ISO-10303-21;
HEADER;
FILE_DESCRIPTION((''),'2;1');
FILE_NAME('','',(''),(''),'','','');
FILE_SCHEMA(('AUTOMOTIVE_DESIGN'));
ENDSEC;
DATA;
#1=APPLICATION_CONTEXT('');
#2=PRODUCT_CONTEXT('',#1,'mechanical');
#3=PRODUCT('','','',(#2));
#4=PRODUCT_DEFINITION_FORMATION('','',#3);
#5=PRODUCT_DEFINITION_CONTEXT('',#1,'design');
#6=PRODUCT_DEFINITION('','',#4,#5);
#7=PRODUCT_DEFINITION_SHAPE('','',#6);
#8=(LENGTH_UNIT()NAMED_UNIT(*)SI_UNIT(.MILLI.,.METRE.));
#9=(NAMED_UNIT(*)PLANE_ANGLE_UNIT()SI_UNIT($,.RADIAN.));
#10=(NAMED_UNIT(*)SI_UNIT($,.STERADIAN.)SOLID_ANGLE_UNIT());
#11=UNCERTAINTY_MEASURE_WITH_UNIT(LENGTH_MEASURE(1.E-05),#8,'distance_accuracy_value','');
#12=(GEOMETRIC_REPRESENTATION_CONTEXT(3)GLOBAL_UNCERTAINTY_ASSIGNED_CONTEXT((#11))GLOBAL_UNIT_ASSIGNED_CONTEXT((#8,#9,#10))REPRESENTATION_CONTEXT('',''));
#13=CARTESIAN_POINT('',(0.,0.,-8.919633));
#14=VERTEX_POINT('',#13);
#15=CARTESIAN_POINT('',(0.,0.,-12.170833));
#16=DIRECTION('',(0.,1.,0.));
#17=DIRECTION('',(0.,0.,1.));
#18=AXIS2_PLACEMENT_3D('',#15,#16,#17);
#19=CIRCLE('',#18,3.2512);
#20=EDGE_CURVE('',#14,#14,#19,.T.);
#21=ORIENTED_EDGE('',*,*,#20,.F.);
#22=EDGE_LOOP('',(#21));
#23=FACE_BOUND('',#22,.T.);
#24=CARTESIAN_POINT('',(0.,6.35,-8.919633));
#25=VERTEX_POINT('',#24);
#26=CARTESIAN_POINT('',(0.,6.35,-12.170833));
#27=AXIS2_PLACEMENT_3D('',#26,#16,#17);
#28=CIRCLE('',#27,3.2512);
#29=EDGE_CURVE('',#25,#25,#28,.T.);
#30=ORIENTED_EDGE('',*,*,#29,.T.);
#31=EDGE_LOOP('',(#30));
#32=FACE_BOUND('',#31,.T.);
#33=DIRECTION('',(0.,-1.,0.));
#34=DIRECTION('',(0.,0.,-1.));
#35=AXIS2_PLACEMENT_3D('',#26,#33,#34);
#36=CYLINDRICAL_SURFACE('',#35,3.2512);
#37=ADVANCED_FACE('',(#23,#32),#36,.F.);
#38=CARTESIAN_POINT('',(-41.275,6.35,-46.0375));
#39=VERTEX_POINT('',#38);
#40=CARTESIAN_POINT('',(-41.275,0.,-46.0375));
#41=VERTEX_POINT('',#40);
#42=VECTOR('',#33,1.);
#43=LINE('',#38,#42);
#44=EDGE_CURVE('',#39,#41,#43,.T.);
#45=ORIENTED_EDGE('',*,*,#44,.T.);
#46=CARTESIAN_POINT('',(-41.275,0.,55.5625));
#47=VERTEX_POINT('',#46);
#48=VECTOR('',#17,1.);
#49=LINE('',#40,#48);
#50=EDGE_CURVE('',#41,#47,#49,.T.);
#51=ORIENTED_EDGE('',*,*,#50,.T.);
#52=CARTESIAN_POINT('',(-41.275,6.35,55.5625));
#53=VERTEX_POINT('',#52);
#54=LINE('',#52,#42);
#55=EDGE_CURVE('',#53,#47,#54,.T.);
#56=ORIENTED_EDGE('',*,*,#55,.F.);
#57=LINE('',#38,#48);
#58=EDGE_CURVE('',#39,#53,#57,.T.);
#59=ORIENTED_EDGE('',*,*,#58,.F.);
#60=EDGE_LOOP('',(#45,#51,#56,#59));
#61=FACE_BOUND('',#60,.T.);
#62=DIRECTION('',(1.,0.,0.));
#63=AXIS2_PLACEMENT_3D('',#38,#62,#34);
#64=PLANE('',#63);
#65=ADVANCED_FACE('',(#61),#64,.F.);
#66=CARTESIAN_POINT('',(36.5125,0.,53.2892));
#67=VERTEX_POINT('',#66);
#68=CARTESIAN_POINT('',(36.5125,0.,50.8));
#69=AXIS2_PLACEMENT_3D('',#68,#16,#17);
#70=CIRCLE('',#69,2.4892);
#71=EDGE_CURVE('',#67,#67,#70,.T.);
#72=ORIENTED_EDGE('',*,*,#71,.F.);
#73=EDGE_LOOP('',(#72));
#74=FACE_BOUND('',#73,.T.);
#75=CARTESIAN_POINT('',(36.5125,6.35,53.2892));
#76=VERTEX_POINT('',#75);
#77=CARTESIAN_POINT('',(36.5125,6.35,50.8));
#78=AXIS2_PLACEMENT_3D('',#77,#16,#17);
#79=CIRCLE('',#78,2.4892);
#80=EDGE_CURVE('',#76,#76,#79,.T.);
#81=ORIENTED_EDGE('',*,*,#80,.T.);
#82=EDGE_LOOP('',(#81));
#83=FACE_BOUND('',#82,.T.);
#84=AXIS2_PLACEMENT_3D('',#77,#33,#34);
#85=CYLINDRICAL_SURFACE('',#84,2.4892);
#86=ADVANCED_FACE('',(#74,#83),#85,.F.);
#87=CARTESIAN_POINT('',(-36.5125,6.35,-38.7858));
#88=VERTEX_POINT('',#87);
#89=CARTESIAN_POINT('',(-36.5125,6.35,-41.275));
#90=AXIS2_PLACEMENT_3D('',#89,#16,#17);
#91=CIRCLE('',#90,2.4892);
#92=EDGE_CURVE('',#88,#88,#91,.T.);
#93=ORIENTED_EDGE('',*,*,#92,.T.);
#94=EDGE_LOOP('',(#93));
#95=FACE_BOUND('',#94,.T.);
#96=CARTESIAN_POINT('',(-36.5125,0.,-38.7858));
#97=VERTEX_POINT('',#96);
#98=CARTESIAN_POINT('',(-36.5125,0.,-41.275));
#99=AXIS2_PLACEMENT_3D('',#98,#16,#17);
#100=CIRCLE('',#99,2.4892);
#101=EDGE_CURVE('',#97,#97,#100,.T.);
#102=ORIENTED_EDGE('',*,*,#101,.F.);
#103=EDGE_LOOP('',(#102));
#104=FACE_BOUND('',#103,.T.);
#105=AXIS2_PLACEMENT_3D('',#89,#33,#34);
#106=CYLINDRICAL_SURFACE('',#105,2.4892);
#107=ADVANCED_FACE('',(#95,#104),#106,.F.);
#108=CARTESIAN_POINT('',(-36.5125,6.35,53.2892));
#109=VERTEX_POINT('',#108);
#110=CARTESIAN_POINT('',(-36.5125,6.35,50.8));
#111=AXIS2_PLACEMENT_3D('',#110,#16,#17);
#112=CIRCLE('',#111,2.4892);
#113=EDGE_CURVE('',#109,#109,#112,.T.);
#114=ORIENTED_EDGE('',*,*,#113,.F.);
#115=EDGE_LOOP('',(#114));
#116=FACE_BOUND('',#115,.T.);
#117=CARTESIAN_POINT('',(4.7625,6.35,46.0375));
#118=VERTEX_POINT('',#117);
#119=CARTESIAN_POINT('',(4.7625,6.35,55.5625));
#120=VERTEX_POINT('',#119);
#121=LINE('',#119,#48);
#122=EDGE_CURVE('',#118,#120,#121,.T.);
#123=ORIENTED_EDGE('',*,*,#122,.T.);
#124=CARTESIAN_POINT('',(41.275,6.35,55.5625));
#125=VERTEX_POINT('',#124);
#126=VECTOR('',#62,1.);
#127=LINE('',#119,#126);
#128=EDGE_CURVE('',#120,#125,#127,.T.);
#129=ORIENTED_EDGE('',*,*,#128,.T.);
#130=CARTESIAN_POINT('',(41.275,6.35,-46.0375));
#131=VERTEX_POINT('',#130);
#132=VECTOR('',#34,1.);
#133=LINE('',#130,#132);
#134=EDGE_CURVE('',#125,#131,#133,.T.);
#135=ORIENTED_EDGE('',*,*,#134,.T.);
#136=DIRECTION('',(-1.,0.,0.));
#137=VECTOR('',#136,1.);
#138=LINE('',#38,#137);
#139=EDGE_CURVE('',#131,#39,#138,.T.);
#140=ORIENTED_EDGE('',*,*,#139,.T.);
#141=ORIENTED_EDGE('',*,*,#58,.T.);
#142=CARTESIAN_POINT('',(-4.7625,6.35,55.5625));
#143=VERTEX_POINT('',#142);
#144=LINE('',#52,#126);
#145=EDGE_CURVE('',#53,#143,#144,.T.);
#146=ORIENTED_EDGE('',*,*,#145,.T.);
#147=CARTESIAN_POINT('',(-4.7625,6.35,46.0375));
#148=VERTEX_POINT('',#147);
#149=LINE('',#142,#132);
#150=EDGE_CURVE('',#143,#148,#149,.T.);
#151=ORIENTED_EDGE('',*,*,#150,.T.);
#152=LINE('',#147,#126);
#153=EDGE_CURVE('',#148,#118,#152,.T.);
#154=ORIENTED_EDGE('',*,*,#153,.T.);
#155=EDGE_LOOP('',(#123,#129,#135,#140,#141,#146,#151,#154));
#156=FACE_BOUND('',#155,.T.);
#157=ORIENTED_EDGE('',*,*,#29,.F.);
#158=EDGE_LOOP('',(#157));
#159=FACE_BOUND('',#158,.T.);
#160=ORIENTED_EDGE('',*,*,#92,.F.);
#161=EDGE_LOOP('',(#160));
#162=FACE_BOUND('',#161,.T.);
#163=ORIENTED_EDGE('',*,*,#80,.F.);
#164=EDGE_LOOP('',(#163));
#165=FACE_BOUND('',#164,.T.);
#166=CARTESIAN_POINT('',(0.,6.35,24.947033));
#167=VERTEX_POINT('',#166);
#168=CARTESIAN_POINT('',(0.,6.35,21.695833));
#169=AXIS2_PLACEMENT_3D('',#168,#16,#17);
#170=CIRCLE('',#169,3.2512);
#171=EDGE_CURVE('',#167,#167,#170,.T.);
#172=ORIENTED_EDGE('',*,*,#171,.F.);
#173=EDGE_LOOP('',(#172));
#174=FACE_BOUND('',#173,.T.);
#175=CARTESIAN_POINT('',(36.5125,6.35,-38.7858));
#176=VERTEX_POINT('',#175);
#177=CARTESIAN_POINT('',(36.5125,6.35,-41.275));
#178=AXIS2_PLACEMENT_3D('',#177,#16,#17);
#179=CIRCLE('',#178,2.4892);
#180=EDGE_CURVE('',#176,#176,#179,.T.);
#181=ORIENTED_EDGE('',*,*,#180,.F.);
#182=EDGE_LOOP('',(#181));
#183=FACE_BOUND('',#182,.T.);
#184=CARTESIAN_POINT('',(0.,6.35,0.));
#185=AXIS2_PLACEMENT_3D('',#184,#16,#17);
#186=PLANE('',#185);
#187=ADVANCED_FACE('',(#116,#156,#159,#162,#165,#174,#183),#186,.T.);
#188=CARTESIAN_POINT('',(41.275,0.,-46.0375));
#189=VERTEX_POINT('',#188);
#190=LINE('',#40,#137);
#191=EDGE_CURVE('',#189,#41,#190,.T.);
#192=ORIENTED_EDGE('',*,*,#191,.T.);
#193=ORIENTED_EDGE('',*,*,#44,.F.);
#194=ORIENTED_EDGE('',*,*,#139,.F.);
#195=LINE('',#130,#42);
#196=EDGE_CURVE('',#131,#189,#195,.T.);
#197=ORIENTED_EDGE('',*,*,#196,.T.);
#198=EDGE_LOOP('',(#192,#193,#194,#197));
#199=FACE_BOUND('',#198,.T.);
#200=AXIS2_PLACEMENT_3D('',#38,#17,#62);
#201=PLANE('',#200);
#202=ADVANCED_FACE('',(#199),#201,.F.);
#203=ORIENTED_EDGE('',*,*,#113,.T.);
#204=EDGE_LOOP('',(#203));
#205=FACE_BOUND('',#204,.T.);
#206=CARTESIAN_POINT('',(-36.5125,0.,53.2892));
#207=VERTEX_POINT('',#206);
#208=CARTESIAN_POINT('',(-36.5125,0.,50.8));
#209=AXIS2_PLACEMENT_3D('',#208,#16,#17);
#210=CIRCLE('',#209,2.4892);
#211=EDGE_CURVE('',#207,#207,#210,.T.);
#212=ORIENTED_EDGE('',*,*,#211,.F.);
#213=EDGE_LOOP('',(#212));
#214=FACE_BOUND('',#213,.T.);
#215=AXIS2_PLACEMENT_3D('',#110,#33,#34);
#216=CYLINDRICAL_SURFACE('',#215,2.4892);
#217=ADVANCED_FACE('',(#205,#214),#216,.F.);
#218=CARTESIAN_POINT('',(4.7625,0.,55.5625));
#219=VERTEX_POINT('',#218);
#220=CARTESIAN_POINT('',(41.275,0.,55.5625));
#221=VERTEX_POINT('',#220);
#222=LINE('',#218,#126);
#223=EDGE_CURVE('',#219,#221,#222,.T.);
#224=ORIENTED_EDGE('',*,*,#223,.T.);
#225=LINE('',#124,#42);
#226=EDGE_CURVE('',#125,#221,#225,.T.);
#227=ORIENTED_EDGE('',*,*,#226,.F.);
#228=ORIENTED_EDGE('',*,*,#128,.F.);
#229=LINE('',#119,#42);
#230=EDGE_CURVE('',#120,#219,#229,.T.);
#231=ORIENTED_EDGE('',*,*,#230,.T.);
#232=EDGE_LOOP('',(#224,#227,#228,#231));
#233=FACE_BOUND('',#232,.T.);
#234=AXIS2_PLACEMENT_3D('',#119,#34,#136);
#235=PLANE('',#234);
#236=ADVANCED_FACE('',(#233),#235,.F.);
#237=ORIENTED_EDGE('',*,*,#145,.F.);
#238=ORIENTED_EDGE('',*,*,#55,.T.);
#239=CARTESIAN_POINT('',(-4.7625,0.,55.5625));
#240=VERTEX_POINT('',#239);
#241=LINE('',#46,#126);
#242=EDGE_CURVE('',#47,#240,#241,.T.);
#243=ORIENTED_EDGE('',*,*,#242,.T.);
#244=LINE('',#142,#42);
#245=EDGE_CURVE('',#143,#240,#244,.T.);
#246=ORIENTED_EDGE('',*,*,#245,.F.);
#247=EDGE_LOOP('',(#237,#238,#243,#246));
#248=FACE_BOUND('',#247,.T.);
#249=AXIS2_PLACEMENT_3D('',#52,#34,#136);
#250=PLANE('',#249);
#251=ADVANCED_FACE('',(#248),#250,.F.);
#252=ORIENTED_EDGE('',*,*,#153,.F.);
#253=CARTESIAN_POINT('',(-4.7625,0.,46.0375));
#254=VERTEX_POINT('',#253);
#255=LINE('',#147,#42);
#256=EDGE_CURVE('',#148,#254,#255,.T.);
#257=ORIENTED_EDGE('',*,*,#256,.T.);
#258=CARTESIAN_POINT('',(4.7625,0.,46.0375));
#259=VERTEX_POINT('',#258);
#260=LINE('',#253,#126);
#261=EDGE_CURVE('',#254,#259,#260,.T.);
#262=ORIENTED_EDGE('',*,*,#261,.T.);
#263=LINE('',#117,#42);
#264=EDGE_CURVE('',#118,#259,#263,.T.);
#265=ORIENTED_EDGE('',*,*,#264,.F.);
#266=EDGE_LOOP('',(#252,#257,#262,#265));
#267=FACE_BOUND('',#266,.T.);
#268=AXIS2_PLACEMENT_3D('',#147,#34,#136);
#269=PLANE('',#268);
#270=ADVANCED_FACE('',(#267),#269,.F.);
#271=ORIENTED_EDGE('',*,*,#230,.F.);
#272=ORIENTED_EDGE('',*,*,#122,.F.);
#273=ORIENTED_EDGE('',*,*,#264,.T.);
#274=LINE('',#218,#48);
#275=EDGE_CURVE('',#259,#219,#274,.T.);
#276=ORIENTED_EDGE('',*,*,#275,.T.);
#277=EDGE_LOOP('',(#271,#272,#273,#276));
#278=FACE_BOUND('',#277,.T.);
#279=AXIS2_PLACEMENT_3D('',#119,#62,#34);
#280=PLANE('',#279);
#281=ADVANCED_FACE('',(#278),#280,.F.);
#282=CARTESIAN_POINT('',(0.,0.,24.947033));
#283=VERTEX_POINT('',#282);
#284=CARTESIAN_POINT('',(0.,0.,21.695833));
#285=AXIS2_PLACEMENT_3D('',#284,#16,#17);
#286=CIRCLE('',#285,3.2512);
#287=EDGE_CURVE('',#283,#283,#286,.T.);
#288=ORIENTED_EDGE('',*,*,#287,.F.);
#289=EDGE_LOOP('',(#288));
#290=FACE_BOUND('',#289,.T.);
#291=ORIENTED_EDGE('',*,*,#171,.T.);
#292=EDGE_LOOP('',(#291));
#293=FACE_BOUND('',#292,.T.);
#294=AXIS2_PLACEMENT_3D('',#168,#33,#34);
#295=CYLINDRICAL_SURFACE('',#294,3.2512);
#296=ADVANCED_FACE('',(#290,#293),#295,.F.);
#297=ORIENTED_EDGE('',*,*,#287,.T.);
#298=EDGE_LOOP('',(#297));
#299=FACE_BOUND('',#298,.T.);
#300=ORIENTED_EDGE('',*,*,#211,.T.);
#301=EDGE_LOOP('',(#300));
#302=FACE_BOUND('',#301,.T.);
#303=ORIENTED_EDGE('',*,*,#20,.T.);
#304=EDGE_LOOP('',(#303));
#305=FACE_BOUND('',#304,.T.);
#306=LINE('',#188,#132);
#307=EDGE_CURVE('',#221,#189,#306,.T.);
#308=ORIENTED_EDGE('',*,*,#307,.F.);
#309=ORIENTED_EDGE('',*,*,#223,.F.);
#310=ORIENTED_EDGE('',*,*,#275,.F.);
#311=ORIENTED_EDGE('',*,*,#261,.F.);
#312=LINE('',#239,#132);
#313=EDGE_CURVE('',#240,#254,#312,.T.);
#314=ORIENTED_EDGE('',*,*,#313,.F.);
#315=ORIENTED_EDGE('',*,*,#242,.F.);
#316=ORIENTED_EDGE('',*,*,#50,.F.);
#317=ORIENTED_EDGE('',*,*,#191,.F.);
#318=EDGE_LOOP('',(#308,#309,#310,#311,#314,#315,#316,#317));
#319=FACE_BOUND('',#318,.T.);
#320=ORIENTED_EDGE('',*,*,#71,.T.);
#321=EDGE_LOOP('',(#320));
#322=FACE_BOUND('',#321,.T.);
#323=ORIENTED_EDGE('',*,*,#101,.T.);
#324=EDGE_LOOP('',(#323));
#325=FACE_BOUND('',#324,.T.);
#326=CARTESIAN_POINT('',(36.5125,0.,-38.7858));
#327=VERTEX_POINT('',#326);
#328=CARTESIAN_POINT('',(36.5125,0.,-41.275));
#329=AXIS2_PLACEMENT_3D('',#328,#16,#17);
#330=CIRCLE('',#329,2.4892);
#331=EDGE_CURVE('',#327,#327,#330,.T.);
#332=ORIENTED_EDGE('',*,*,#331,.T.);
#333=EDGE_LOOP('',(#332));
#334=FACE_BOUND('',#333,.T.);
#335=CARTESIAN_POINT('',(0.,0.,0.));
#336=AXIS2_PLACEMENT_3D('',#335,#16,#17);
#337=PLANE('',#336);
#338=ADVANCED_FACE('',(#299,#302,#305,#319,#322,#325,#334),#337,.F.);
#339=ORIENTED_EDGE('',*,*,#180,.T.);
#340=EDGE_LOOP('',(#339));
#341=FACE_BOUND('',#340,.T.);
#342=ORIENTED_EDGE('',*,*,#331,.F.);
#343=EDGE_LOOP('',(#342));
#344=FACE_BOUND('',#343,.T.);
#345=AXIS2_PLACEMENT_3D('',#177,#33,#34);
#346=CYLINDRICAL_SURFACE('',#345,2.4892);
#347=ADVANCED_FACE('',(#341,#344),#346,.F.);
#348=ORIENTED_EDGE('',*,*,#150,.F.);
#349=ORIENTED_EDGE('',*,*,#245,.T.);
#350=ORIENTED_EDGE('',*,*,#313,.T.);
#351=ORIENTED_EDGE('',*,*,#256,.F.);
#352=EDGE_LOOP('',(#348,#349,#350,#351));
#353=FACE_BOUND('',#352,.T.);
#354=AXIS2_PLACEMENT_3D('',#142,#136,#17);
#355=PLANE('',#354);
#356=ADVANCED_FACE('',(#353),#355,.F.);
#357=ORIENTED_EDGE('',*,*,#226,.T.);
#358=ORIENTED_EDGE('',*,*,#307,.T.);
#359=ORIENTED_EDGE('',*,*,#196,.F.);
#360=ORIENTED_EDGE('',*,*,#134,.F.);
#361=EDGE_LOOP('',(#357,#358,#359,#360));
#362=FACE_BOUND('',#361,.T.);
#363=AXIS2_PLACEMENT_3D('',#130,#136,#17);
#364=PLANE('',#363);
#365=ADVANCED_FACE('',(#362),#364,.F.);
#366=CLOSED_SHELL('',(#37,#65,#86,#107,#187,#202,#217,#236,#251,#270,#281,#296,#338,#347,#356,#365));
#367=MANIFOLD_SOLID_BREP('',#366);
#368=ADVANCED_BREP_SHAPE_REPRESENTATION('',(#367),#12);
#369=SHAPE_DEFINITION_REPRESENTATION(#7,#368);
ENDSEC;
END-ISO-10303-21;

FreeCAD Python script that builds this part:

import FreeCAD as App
import Part
import Sketcher
from FreeCAD import Vector
Q = App.Units.Quantity


def add_polygon(sketch, points):
    """Adds a closed chain of lines whose ends are joined by coincident constraints."""
    first, n = sketch.GeometryCount, len(points)
    for a, b in zip(points, points[1:] + points[:1]):
        sketch.addGeometry(Part.LineSegment(App.Vector(*a, 0), App.Vector(*b, 0)), False)
    for i in range(n):
        sketch.addConstraint(Sketcher.Constraint("Coincident", first + i, 2, first + (i + 1) % n, 1))

doc = App.newDocument("Part")
body = doc.addObject("PartDesign::Body", "Body")

# Sketch on XZ plane
sketch1 = body.newObject("Sketcher::SketchObject", "Sketch")
sketch1.AttachmentSupport = (doc.getObject("XZ_Plane"), [""])
sketch1.MapMode = "FlatFace"
add_polygon(sketch1, [(41.3, -46), (-41.3, -46), (-41.3, 55.6), (-4.8, 55.6), (-4.8, 46), (4.8, 46), (4.8, 55.6), (41.3, 55.6)])  # lines 0-7
sketch1.addGeometry(Part.Circle(Vector(36.5, 50.8, 0), Vector(0, 0, 1), 2.5), False)  # 8
sketch1.addGeometry(Part.Circle(Vector(-36.5, 50.8, 0), Vector(0, 0, 1), 2.5), False)  # 9
sketch1.addGeometry(Part.Circle(Vector(0, 21.7, 0), Vector(0, 0, 1), 3.3), False)  # 10
sketch1.addGeometry(Part.Circle(Vector(36.5, -41.3, 0), Vector(0, 0, 1), 2.5), False)  # 11
sketch1.addGeometry(Part.Circle(Vector(0, -12.2, 0), Vector(0, 0, 1), 3.3), False)  # 12
sketch1.addGeometry(Part.Circle(Vector(-36.5, -41.3, 0), Vector(0, 0, 1), 2.5), False)  # 13
sketch1.addConstraint([
    Sketcher.Constraint("Horizontal", 0),
    Sketcher.Constraint("Vertical", 1),
    Sketcher.Constraint("Horizontal", 2),
    Sketcher.Constraint("Vertical", 3),
    Sketcher.Constraint("Horizontal", 4),
    Sketcher.Constraint("Vertical", 5),
    Sketcher.Constraint("Horizontal", 6),
    Sketcher.Constraint("Vertical", 7),
    Sketcher.Constraint("Equal", 8, 9),
    Sketcher.Constraint("Equal", 9, 11),
    Sketcher.Constraint("Equal", 10, 12),
    Sketcher.Constraint("Equal", 11, 13),
    Sketcher.Constraint("Symmetric", 8, 3, 9, 3, -2),
    Sketcher.Constraint("Symmetric", 11, 3, 13, 3, -2),
    Sketcher.Constraint("Symmetric", 2, 2, 5, 2, -2),
    Sketcher.Constraint("PointOnObject", 10, 3, -2),
    Sketcher.Constraint("PointOnObject", 12, 3, -2),
    Sketcher.Constraint("Vertical", 8, 3, 11, 3),
    Sketcher.Constraint("Equal", 2, 6),
    Sketcher.Constraint("Equal", 4, 3),
    Sketcher.Constraint("DistanceY", 1, 1, 1, 2, Q("4 in")),
    Sketcher.Constraint("Diameter", 8, Q("0.196 in")),
    Sketcher.Constraint("Diameter", 10, Q("0.256 in")),
    Sketcher.Constraint("DistanceY", -1, 1, 8, 3, Q("2 in")),
    Sketcher.Constraint("DistanceX", 0, 2, 0, 1, Q("3.25 in")),
    Sketcher.Constraint("DistanceX", 2, 1, 2, 2, Q("1.4375 in")),
    Sketcher.Constraint("DistanceX", 9, 3, 2, 2, Q("1.25 in")),
    Sketcher.Constraint("DistanceY", 11, 3, -1, 1, Q("1.625 in")),
    Sketcher.Constraint("DistanceY", 0, 2, -1, 1, Q("1.8125 in")),
    Sketcher.Constraint("DistanceY", -1, 1, 10, 3, Q("21.695833 mm")),
    Sketcher.Constraint("DistanceY", 12, 3, -1, 1, Q("12.170833 mm")),
])
pad1 = body.newObject("PartDesign::Pad", "Pad")
pad1.Profile = sketch1
pad1.Length = Q("0.25 in")
pad1.Reversed = True

doc.recompute()
